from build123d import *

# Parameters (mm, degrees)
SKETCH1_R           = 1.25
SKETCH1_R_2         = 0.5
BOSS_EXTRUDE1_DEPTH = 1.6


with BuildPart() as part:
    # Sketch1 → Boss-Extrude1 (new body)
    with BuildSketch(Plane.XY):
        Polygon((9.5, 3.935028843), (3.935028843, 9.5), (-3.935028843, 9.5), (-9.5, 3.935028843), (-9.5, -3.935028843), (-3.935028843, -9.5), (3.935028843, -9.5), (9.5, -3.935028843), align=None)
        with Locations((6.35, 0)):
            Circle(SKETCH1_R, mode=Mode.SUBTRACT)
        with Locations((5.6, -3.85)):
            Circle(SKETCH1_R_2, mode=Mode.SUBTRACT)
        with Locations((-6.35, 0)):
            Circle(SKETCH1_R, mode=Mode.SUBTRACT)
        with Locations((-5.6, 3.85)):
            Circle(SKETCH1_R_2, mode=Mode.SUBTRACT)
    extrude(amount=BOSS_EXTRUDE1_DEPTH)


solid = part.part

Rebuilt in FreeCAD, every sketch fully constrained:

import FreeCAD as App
import Part
import Sketcher


def add_polygon(sketch, points):
    """Adds a closed chain of lines whose ends are joined by coincident constraints."""
    first, n = sketch.GeometryCount, len(points)
    for a, b in zip(points, points[1:] + points[:1]):
        sketch.addGeometry(Part.LineSegment(App.Vector(*a, 0), App.Vector(*b, 0)), False)
    for i in range(n):
        sketch.addConstraint(Sketcher.Constraint("Coincident", first + i, 2, first + (i + 1) % n, 1))

doc = App.newDocument("Part")
body = doc.addObject("PartDesign::Body", "Body")

# Sketch on XY plane
sketch1 = body.newObject("Sketcher::SketchObject", "Sketch")
sketch1.AttachmentSupport = (doc.getObject("XY_Plane"), [""])
sketch1.MapMode = "FlatFace"
add_polygon(sketch1, [(9.5, 3.9), (3.9, 9.5), (-3.9, 9.5), (-9.5, 3.9), (-9.5, -3.9), (-3.9, -9.5), (3.9, -9.5), (9.5, -3.9)])  # lines 0-7
sketch1.addGeometry(Part.Circle(App.Vector(5.6, -3.9, 0), App.Vector(0, 0, 1), 0.5), False)  # 8
sketch1.addGeometry(Part.Circle(App.Vector(-6.3, 0, 0), App.Vector(0, 0, 1), 1.2), False)  # 9
sketch1.addGeometry(Part.Circle(App.Vector(-5.6, 3.9, 0), App.Vector(0, 0, 1), 0.5), False)  # 10
sketch1.addGeometry(Part.Circle(App.Vector(6.3, 0, 0), App.Vector(0, 0, 1), 1.2), False)  # 11
sketch1.addConstraint(Sketcher.Constraint("Horizontal", 1))
sketch1.addConstraint(Sketcher.Constraint("Vertical", 3))
sketch1.addConstraint(Sketcher.Constraint("Horizontal", 5))
sketch1.addConstraint(Sketcher.Constraint("Vertical", 7))
sketch1.addConstraint(Sketcher.Constraint("Equal", 8, 10))
sketch1.addConstraint(Sketcher.Constraint("Equal", 9, 11))
sketch1.addConstraint(Sketcher.Constraint("Symmetric", 8, 3, 10, 3, -1, 1))
sketch1.addConstraint(Sketcher.Constraint("Symmetric", 9, 3, 11, 3, -1, 1))
sketch1.addConstraint(Sketcher.Constraint("Symmetric", 0, 2, 4, 2, -1, 1))
sketch1.addConstraint(Sketcher.Constraint("Symmetric", 2, 2, 6, 2, -1, 1))
sketch1.addConstraint(Sketcher.Constraint("PointOnObject", 9, 3, -1))
sketch1.addConstraint(Sketcher.Constraint("Perpendicular", 0, 2))
sketch1.addConstraint(Sketcher.Constraint("Perpendicular", 2, 4))
sketch1.addConstraint(Sketcher.Constraint("Perpendicular", 4, 6))
sketch1.addConstraint(Sketcher.Constraint("Horizontal", 3, 2, 6, 2))
sketch1.addConstraint(Sketcher.Constraint("Vertical", 1, 2, 4, 2))
sketch1.addConstraint(Sketcher.Constraint("Equal", 5, 3))
sketch1.addConstraint(Sketcher.Constraint("Diameter", 8, 1.0))
sketch1.addConstraint(Sketcher.Constraint("Diameter", 9, 2.5))
sketch1.addConstraint(Sketcher.Constraint("DistanceX", -1, 1, 8, 3, 5.6))
sketch1.addConstraint(Sketcher.Constraint("DistanceY", -1, 1, 0, 2, 9.5))
sketch1.addConstraint(Sketcher.Constraint("DistanceY", 8, 3, 10, 3, 7.7))
sketch1.addConstraint(Sketcher.Constraint("DistanceX", 9, 3, 11, 3, 12.7))
sketch1.addConstraint(Sketcher.Constraint("DistanceX", 1, 2, 1, 1, 7.870058))
pad1 = body.newObject("PartDesign::Pad", "Pad")
pad1.Profile = sketch1
pad1.Length = 1.6

doc.recompute()
